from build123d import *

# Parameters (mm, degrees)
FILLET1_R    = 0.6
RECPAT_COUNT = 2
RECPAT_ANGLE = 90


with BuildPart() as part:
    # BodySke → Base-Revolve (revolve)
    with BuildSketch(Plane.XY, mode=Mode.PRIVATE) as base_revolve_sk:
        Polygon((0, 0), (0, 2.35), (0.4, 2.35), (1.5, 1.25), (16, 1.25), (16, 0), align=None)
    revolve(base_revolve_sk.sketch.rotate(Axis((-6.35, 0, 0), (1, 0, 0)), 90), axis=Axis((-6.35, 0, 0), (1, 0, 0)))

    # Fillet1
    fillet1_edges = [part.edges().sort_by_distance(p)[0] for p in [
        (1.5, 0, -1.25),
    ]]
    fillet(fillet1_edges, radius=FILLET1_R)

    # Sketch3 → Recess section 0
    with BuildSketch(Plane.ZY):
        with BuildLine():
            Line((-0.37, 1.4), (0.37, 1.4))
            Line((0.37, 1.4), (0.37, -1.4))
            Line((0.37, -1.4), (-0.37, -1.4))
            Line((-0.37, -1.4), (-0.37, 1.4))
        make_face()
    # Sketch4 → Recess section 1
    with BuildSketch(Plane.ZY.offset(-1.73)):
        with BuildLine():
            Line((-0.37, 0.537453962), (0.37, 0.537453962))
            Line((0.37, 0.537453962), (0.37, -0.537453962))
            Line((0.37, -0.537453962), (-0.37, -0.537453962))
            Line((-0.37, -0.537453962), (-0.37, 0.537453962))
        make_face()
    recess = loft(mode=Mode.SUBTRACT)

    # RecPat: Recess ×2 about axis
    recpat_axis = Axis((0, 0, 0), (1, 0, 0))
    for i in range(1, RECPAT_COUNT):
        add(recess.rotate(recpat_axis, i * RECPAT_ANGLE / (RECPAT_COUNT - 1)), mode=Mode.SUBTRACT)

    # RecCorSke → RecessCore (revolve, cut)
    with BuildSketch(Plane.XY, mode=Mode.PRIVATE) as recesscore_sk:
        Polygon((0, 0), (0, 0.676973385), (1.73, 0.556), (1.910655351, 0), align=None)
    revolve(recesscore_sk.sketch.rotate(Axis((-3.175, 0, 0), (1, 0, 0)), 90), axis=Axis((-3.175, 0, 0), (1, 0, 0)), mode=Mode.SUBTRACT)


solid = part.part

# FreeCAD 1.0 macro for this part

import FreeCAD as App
import Part
import Sketcher

V = App.Vector
Q = App.Units.Quantity


def edges_at(feature, points):
    """Names of the edges that pass closest to the given points."""
    edges = feature.Shape.Edges
    near = lambda p: min(range(len(edges)), key=lambda i: edges[i].distToShape(Part.Vertex(*p))[0])
    return sorted({f"Edge{near(p) + 1}" for p in points})

doc = App.newDocument("Part")
body = doc.addObject("PartDesign::Body", "Body")

# Sketch on XY plane
sketch1 = body.newObject("Sketcher::SketchObject", "Sketch")
sketch1.AttachmentSupport = (doc.getObject("XY_Plane"), [""])
sketch1.MapMode = "FlatFace"
sketch1.addGeometry(Part.LineSegment(V(0, 2.35, 0), V(0, 0, 0)), False)
sketch1.addGeometry(Part.LineSegment(V(0, 0, 0), V(16, 0, 0)), False)
sketch1.addGeometry(Part.LineSegment(V(16, 0, 0), V(16, 1.25, 0)), False)
sketch1.addGeometry(Part.LineSegment(V(16, 1.25, 0), V(1.5, 1.25, 0)), False)
sketch1.addGeometry(Part.LineSegment(V(1.5, 1.25, 0), V(0.4, 2.35, 0)), False)
sketch1.addGeometry(Part.LineSegment(V(0.4, 2.35, 0), V(0, 2.35, 0)), False)
sketch1.addConstraint(Sketcher.Constraint("Coincident", 0, 2, 1, 1))
sketch1.addConstraint(Sketcher.Constraint("Coincident", 1, 2, 2, 1))
sketch1.addConstraint(Sketcher.Constraint("Coincident", 2, 2, 3, 1))
sketch1.addConstraint(Sketcher.Constraint("Coincident", 3, 2, 4, 1))
sketch1.addConstraint(Sketcher.Constraint("Coincident", 4, 2, 5, 1))
sketch1.addConstraint(Sketcher.Constraint("Coincident", 5, 2, 0, 1))
sketch1.addConstraint(Sketcher.Constraint("Vertical", 0))
sketch1.addConstraint(Sketcher.Constraint("Horizontal", 1))
sketch1.addConstraint(Sketcher.Constraint("Vertical", 2))
sketch1.addConstraint(Sketcher.Constraint("Horizontal", 3))
sketch1.addConstraint(Sketcher.Constraint("Horizontal", 5))
sketch1.addConstraint(Sketcher.Constraint("Coincident", 0, 2, -1, 1))
sketch1.addConstraint(Sketcher.Constraint("DistanceX", 1, 1, 1, 2, Q("16 mm")))
sketch1.addConstraint(Sketcher.Constraint("Angle", 4, Q("135 deg")))
sketch1.addConstraint(Sketcher.Constraint("DistanceX", 3, 2, 3, 1, Q("14.5 mm")))
sketch1.addConstraint(Sketcher.Constraint("DistanceX", 5, 2, 5, 1, Q("0.4 mm")))
sketch1.addConstraint(Sketcher.Constraint("DistanceY", 0, 2, 0, 1, Q("2.35 mm")))
revolution = body.newObject("PartDesign::Revolution", "Revolution")
revolution.Profile = sketch1
revolution.ReferenceAxis = (sketch1, ["H_Axis"])
revolution.Angle = 360
doc.recompute()

fillet = body.newObject("PartDesign::Fillet", "Fillet")
fillet.Base = (revolution, edges_at(revolution, [(1.5, 0, -1.25)]))
fillet.Radius = 0.6

# Sketch on YZ plane
sketch2 = body.newObject("Sketcher::SketchObject", "Sketch001")
sketch2.AttachmentSupport = (doc.getObject("YZ_Plane"), [""])
sketch2.MapMode = "FlatFace"
sketch2.addGeometry(Part.LineSegment(V(1.4, 0.37, 0), V(1.4, -0.37, 0)), False)
sketch2.addGeometry(Part.LineSegment(V(1.4, -0.37, 0), V(-1.4, -0.37, 0)), False)
sketch2.addGeometry(Part.LineSegment(V(-1.4, -0.37, 0), V(-1.4, 0.37, 0)), False)
sketch2.addGeometry(Part.LineSegment(V(-1.4, 0.37, 0), V(1.4, 0.37, 0)), False)
sketch2.addConstraint(Sketcher.Constraint("Coincident", 0, 2, 1, 1))
sketch2.addConstraint(Sketcher.Constraint("Coincident", 1, 2, 2, 1))
sketch2.addConstraint(Sketcher.Constraint("Coincident", 2, 2, 3, 1))
sketch2.addConstraint(Sketcher.Constraint("Coincident", 3, 2, 0, 1))
sketch2.addConstraint(Sketcher.Constraint("Vertical", 0))
sketch2.addConstraint(Sketcher.Constraint("Horizontal", 1))
sketch2.addConstraint(Sketcher.Constraint("Vertical", 2))
sketch2.addConstraint(Sketcher.Constraint("Horizontal", 3))
sketch2.addConstraint(Sketcher.Constraint("Symmetric", 0, 2, 2, 2, -1, 1))
sketch2.addConstraint(Sketcher.Constraint("DistanceX", 1, 2, 1, 1, Q("2.8 mm")))
sketch2.addConstraint(Sketcher.Constraint("DistanceY", 0, 2, 0, 1, Q("0.74 mm")))

# Sketch on YZ plane
sketch3 = body.newObject("Sketcher::SketchObject", "Sketch002")
sketch3.AttachmentSupport = (doc.getObject("YZ_Plane"), [""])
sketch3.MapMode = "FlatFace"
sketch3.AttachmentOffset = App.Placement(V(0, 0, 1.73), App.Rotation())
sketch3.addGeometry(Part.LineSegment(V(0.537454, 0.37, 0), V(0.537454, -0.37, 0)), False)
sketch3.addGeometry(Part.LineSegment(V(0.537454, -0.37, 0), V(-0.537454, -0.37, 0)), False)
sketch3.addGeometry(Part.LineSegment(V(-0.537454, -0.37, 0), V(-0.537454, 0.37, 0)), False)
sketch3.addGeometry(Part.LineSegment(V(-0.537454, 0.37, 0), V(0.537454, 0.37, 0)), False)
sketch3.addConstraint(Sketcher.Constraint("Coincident", 0, 2, 1, 1))
sketch3.addConstraint(Sketcher.Constraint("Coincident", 1, 2, 2, 1))
sketch3.addConstraint(Sketcher.Constraint("Coincident", 2, 2, 3, 1))
sketch3.addConstraint(Sketcher.Constraint("Coincident", 3, 2, 0, 1))
sketch3.addConstraint(Sketcher.Constraint("Vertical", 0))
sketch3.addConstraint(Sketcher.Constraint("Horizontal", 1))
sketch3.addConstraint(Sketcher.Constraint("Vertical", 2))
sketch3.addConstraint(Sketcher.Constraint("Horizontal", 3))
sketch3.addConstraint(Sketcher.Constraint("Symmetric", 0, 2, 2, 2, -1, 1))
sketch3.addConstraint(Sketcher.Constraint("DistanceY", 0, 2, 0, 1, Q("0.74 mm")))
sketch3.addConstraint(Sketcher.Constraint("DistanceX", 1, 2, 1, 1, Q("1.074908 mm")))

subtractiveloft = body.newObject("PartDesign::SubtractiveLoft", "SubtractiveLoft")
subtractiveloft.Profile = sketch2
subtractiveloft.Sections = [sketch3]
doc.recompute()

polarpattern = body.newObject("PartDesign::PolarPattern", "PolarPattern")
polarpattern.Originals = [subtractiveloft]
polarpattern.Axis = (doc.getObject("X_Axis"), [""])
polarpattern.Angle = 90
polarpattern.Occurrences = 2
body.Tip = polarpattern

# Sketch on XY plane
sketch4 = body.newObject("Sketcher::SketchObject", "Sketch003")
sketch4.AttachmentSupport = (doc.getObject("XY_Plane"), [""])
sketch4.MapMode = "FlatFace"
sketch4.addGeometry(Part.LineSegment(V(0, 0.676973, 0), V(0, 0, 0)), False)
sketch4.addGeometry(Part.LineSegment(V(0, 0, 0), V(1.910655, 0, 0)), False)
sketch4.addGeometry(Part.LineSegment(V(1.910655, 0, 0), V(1.73, 0.556, 0)), False)
sketch4.addGeometry(Part.LineSegment(V(1.73, 0.556, 0), V(0, 0.676973, 0)), False)
sketch4.addConstraint(Sketcher.Constraint("Coincident", 0, 2, 1, 1))
sketch4.addConstraint(Sketcher.Constraint("Coincident", 1, 2, 2, 1))
sketch4.addConstraint(Sketcher.Constraint("Coincident", 2, 2, 3, 1))
sketch4.addConstraint(Sketcher.Constraint("Coincident", 3, 2, 0, 1))
sketch4.addConstraint(Sketcher.Constraint("Vertical", 0))
sketch4.addConstraint(Sketcher.Constraint("Horizontal", 1))
sketch4.addConstraint(Sketcher.Constraint("Coincident", 0, 2, -1, 1))
sketch4.addConstraint(Sketcher.Constraint("Angle", 2, Q("108 deg")))
sketch4.addConstraint(Sketcher.Constraint("Angle", 3, Q("176 deg")))
sketch4.addConstraint(Sketcher.Constraint("DistanceX", -1, 1, 2, 2, Q("1.73 mm")))
sketch4.addConstraint(Sketcher.Constraint("DistanceY", -1, 1, 2, 2, Q("0.556 mm")))
groove = body.newObject("PartDesign::Groove", "Groove")
groove.Profile = sketch4
groove.ReferenceAxis = (sketch4, ["H_Axis"])
groove.Angle = 360

doc.recompute()
